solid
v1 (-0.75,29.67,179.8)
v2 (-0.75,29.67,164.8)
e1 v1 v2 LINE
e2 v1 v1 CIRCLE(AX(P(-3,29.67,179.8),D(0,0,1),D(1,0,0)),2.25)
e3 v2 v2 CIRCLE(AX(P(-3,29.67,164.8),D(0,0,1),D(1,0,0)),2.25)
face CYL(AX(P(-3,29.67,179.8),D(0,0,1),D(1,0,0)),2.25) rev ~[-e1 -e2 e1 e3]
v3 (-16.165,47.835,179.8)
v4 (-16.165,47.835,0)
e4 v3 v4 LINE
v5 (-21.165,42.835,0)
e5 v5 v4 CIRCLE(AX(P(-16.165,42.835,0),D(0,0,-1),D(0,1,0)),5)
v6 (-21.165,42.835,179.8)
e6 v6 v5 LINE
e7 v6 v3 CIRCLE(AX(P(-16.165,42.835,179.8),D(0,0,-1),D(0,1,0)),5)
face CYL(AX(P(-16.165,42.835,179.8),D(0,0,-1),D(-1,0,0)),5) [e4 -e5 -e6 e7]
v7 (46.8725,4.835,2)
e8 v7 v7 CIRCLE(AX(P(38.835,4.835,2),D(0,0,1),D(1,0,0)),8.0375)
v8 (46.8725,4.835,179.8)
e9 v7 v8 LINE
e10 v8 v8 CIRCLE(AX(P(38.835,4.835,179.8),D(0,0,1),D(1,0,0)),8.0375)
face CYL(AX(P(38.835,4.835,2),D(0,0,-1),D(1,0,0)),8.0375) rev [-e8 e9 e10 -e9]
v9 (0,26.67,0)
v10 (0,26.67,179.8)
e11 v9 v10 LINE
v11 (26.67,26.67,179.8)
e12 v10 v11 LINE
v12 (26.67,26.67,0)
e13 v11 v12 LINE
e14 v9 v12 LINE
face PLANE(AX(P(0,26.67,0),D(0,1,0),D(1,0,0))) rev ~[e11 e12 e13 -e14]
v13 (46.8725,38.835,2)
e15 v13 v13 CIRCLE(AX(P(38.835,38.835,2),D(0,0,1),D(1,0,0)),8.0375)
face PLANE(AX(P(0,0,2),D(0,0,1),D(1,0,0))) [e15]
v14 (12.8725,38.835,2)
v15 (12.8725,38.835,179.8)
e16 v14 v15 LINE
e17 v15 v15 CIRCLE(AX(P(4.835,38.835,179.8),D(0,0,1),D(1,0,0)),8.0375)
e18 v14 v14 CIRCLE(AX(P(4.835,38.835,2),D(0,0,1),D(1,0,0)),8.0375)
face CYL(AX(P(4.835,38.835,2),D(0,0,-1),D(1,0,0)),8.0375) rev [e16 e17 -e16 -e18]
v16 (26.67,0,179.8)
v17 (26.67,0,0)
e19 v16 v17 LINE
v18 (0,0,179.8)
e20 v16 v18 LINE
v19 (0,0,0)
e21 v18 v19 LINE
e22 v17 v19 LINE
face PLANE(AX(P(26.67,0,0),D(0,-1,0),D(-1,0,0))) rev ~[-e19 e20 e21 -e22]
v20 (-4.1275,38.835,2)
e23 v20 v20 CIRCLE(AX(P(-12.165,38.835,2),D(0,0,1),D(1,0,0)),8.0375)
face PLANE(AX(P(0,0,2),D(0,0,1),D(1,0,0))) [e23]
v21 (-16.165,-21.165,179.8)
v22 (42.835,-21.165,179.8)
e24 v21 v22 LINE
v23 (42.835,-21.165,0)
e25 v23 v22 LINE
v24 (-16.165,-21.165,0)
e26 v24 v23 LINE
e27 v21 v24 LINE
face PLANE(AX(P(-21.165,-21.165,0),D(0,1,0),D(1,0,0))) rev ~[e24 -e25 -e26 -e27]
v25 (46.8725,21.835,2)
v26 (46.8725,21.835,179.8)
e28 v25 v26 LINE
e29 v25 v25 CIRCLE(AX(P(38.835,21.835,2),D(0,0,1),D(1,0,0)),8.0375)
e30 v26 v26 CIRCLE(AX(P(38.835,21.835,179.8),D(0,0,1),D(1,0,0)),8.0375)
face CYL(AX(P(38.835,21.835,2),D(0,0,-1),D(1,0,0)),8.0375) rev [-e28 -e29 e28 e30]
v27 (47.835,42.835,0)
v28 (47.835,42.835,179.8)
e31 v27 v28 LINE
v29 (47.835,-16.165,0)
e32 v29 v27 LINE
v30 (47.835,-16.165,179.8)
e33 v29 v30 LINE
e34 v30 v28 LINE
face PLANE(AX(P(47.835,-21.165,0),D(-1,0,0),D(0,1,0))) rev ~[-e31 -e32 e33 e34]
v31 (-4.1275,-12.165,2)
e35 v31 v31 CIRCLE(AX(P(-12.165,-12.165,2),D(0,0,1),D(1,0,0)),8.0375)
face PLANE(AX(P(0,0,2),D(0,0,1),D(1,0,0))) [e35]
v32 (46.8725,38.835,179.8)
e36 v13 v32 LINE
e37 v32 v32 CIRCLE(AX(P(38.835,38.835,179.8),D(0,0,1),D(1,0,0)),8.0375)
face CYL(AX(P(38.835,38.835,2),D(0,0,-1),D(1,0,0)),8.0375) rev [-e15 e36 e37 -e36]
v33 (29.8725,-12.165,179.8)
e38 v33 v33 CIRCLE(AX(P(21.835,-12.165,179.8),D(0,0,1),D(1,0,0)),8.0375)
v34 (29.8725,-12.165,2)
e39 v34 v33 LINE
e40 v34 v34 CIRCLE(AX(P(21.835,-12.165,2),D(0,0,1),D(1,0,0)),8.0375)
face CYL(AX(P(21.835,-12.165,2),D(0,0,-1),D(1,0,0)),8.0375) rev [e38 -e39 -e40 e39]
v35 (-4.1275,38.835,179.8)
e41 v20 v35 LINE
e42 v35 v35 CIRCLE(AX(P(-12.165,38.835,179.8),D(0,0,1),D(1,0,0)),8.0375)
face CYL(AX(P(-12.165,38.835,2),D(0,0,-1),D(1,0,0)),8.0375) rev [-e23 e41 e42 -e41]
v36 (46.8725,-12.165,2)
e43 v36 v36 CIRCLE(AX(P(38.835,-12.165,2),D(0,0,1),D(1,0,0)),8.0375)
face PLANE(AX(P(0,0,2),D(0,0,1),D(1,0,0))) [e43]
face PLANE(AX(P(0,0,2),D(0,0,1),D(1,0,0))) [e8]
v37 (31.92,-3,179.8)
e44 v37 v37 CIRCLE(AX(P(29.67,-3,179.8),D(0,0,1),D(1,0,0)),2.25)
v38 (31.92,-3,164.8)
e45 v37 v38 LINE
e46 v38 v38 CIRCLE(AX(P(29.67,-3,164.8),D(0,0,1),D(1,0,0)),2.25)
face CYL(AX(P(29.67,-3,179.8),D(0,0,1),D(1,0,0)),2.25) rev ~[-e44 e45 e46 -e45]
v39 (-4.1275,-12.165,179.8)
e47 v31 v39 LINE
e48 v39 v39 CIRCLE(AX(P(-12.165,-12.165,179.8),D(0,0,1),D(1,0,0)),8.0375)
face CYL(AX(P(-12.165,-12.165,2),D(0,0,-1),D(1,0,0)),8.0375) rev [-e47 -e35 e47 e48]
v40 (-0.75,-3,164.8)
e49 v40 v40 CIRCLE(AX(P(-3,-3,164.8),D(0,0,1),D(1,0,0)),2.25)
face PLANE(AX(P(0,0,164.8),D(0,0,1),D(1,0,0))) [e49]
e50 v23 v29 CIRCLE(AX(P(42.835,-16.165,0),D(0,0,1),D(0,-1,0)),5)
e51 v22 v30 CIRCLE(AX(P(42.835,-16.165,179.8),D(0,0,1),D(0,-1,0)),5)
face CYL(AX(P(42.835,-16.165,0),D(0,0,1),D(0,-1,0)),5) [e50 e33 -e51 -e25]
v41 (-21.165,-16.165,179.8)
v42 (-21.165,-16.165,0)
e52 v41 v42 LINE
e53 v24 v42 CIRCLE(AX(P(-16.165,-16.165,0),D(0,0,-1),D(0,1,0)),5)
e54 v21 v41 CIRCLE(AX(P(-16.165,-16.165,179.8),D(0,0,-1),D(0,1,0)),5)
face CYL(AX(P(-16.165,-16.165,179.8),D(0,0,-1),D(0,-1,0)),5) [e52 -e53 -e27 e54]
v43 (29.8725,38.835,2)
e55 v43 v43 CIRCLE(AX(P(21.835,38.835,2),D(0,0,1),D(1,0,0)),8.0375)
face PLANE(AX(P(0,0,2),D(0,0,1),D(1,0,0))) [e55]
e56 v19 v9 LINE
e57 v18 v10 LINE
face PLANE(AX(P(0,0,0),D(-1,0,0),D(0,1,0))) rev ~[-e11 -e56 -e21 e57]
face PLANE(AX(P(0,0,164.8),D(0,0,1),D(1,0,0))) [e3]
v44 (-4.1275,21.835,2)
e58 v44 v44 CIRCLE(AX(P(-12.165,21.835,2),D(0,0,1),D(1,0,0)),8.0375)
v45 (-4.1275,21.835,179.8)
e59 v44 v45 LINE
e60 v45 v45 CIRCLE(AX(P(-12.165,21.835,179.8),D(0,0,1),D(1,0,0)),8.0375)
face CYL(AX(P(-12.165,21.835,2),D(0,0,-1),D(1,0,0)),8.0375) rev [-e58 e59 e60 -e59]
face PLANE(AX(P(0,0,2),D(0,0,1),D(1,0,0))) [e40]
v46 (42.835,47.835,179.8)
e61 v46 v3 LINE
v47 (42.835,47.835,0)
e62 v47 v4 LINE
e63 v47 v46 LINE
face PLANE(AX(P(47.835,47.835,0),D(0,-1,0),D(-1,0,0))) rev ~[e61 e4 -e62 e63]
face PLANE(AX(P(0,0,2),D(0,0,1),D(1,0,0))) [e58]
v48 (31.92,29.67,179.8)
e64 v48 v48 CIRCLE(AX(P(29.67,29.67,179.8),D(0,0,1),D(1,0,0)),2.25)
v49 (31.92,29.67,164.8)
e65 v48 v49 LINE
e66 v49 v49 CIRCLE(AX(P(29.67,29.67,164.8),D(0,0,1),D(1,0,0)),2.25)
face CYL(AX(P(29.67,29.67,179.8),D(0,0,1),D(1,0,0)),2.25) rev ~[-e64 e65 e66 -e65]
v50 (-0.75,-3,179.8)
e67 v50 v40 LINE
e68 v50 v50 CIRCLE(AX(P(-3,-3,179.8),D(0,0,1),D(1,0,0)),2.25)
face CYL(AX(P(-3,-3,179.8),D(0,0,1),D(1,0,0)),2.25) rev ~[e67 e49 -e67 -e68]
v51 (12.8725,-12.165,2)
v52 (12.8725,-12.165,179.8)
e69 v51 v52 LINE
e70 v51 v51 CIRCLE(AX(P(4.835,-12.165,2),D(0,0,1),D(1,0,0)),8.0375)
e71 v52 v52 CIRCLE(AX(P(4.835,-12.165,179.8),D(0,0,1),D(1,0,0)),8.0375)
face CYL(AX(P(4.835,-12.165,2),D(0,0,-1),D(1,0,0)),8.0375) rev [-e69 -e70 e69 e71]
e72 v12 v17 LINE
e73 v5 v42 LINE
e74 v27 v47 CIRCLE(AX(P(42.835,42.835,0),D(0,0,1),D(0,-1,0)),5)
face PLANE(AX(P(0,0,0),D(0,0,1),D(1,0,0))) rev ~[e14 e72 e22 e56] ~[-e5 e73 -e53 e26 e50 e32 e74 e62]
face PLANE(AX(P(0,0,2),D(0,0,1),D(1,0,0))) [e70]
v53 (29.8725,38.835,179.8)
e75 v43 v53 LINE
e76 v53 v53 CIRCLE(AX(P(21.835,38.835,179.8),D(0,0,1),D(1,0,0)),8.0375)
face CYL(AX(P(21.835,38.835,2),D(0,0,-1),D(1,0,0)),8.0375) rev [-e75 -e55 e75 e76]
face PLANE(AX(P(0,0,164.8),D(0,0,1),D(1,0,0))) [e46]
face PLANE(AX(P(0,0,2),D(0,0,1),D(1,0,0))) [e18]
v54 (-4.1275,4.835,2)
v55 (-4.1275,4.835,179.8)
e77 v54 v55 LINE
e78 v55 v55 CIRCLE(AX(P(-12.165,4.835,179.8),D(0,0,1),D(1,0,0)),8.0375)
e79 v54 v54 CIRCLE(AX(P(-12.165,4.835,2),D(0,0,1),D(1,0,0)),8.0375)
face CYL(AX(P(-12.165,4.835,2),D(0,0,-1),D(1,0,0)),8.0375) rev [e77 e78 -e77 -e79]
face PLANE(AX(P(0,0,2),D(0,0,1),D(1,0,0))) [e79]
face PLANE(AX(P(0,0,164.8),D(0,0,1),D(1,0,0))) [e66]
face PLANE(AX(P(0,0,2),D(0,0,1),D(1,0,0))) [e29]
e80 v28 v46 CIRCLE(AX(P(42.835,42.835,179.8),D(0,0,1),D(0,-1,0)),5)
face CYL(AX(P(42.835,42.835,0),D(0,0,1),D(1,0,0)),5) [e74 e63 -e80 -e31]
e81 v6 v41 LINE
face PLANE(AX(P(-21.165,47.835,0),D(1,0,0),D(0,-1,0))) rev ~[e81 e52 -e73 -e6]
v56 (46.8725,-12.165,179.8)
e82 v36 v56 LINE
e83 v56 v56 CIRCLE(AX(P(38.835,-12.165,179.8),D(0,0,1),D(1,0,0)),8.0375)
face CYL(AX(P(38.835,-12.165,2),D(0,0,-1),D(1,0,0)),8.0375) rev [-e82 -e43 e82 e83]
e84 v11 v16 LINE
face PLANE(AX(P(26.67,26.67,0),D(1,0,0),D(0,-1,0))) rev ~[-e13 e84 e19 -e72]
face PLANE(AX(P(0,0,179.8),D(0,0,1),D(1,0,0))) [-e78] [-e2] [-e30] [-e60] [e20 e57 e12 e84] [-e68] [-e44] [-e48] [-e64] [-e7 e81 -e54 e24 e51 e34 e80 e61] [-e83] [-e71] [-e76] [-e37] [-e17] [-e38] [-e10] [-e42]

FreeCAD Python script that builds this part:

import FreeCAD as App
import Part
import Sketcher


def edges_at(feature, points):
    """Names of the edges that pass closest to the given points."""
    edges = feature.Shape.Edges
    near = lambda p: min(range(len(edges)), key=lambda i: edges[i].distToShape(Part.Vertex(*p))[0])
    return sorted({f"Edge{near(p) + 1}" for p in points})


def add_polygon(sketch, points):
    """Adds a closed chain of lines whose ends are joined by coincident constraints."""
    first, n = sketch.GeometryCount, len(points)
    for a, b in zip(points, points[1:] + points[:1]):
        sketch.addGeometry(Part.LineSegment(App.Vector(*a, 0), App.Vector(*b, 0)), False)
    for i in range(n):
        sketch.addConstraint(Sketcher.Constraint("Coincident", first + i, 2, first + (i + 1) % n, 1))

doc = App.newDocument("Part")
params = doc.addObject("Spreadsheet::Sheet", "Params")
for row, (alias, value) in enumerate([
    ("sketch1_width", "69 mm"),
    ("sketch1_width2", "26.67 mm"),
    ("pad1_length", "2 mm"),
    ("sketch2_width", "26.67 mm"),
    ("pad2_length", "177.8 mm"),
    ("sketch3_diameter", "4.5 mm"),
    ("pocket1_length", "15 mm"),
    ("fillet_radius", "5 mm"),
], start=1):
    params.set(f"A{row}", alias)
    params.set(f"B{row}", "=" + value)
    params.setAlias(f"B{row}", alias)

body = doc.addObject("PartDesign::Body", "Body")

sketch1 = body.newObject("Sketcher::SketchObject", "Sketch")
sketch1.AttachmentSupport = (doc.getObject("XY_Plane"), [""])
sketch1.MapMode = "FlatFace"
add_polygon(sketch1, [(-21.165, -21.165), (47.835, -21.165), (47.835, 47.835), (-21.165, 47.835)])
add_polygon(sketch1, [(0, 0), (0, 26.67), (26.67, 26.67), (26.67, 0)])
sketch1.addConstraint(Sketcher.Constraint("Horizontal", 0))
sketch1.addConstraint(Sketcher.Constraint("Vertical", 1))
sketch1.addConstraint(Sketcher.Constraint("Horizontal", 2))
sketch1.addConstraint(Sketcher.Constraint("Vertical", 3))
sketch1.addConstraint(Sketcher.Constraint("Vertical", 4))
sketch1.addConstraint(Sketcher.Constraint("Horizontal", 5))
sketch1.addConstraint(Sketcher.Constraint("Vertical", 6))
sketch1.addConstraint(Sketcher.Constraint("Horizontal", 7))
sketch1.addConstraint(Sketcher.Constraint("Coincident", 7, 2, -1, 1))
sketch1.addConstraint(Sketcher.Constraint("Equal", 2, 1))
sketch1.addConstraint(Sketcher.Constraint("Equal", 7, 4))
sketch1.addConstraint(Sketcher.Constraint("DistanceX", 0, 1, 0, 2, 69.0))
sketch1.addConstraint(Sketcher.Constraint("DistanceX", 5, 1, 5, 2, 26.67))
sketch1.addConstraint(Sketcher.Constraint("DistanceX", -1, 1, 0, 2, 47.835))
sketch1.addConstraint(Sketcher.Constraint("DistanceY", 0, 2, -1, 1, 21.165))
sketch1.setExpression("Constraints[19]", "Params.sketch1_width")
sketch1.setExpression("Constraints[20]", "Params.sketch1_width2")
pad1 = body.newObject("PartDesign::Pad", "Pad")
pad1.Profile = sketch1
pad1.setExpression("Length", "Params.pad1_length")

sketch2 = body.newObject("Sketcher::SketchObject", "Sketch001")
sketch2.AttachmentSupport = (doc.getObject("XY_Plane"), [""])
sketch2.MapMode = "FlatFace"
sketch2.AttachmentOffset = App.Placement(App.Vector(0, 0, 2), App.Rotation())
add_polygon(sketch2, [(47.835, -21.165), (47.835, 47.835), (-21.165, 47.835), (-21.165, -21.165)])
sketch2.addGeometry(Part.Circle(App.Vector(-12.165, -12.165, 0), App.Vector(0, 0, 1), 8.0375), False)
sketch2.addGeometry(Part.Circle(App.Vector(4.835, -12.165, 0), App.Vector(0, 0, 1), 8.0375), False)
sketch2.addGeometry(Part.Circle(App.Vector(-12.165, 4.835, 0), App.Vector(0, 0, 1), 8.0375), False)
sketch2.addGeometry(Part.Circle(App.Vector(21.835, -12.165, 0), App.Vector(0, 0, 1), 8.0375), False)
sketch2.addGeometry(Part.Circle(App.Vector(38.835, -12.165, 0), App.Vector(0, 0, 1), 8.0375), False)
sketch2.addGeometry(Part.Circle(App.Vector(38.835, 4.835, 0), App.Vector(0, 0, 1), 8.0375), False)
sketch2.addGeometry(Part.Circle(App.Vector(-12.165, 21.835, 0), App.Vector(0, 0, 1), 8.0375), False)
sketch2.addGeometry(Part.Circle(App.Vector(-12.165, 38.835, 0), App.Vector(0, 0, 1), 8.0375), False)
sketch2.addGeometry(Part.Circle(App.Vector(4.835, 38.835, 0), App.Vector(0, 0, 1), 8.0375), False)
add_polygon(sketch2, [(26.67, 0), (0, 0), (0, 26.67), (26.67, 26.67)])
sketch2.addGeometry(Part.Circle(App.Vector(38.835, 21.835, 0), App.Vector(0, 0, 1), 8.0375), False)
sketch2.addGeometry(Part.Circle(App.Vector(21.835, 38.835, 0), App.Vector(0, 0, 1), 8.0375), False)
sketch2.addGeometry(Part.Circle(App.Vector(38.835, 38.835, 0), App.Vector(0, 0, 1), 8.0375), False)
sketch2.addConstraint(Sketcher.Constraint("Vertical", 0))
sketch2.addConstraint(Sketcher.Constraint("Horizontal", 1))
sketch2.addConstraint(Sketcher.Constraint("Vertical", 2))
sketch2.addConstraint(Sketcher.Constraint("Horizontal", 3))
sketch2.addConstraint(Sketcher.Constraint("Horizontal", 13))
sketch2.addConstraint(Sketcher.Constraint("Vertical", 14))
sketch2.addConstraint(Sketcher.Constraint("Horizontal", 15))
sketch2.addConstraint(Sketcher.Constraint("Vertical", 16))
sketch2.addConstraint(Sketcher.Constraint("Coincident", 13, 2, -1, 1))
sketch2.addConstraint(Sketcher.Constraint("Equal", 4, 5))
sketch2.addConstraint(Sketcher.Constraint("Equal", 5, 6))
sketch2.addConstraint(Sketcher.Constraint("Equal", 6, 7))
sketch2.addConstraint(Sketcher.Constraint("Equal", 7, 8))
sketch2.addConstraint(Sketcher.Constraint("Equal", 8, 9))
sketch2.addConstraint(Sketcher.Constraint("Equal", 9, 10))
sketch2.addConstraint(Sketcher.Constraint("Equal", 10, 11))
sketch2.addConstraint(Sketcher.Constraint("Equal", 11, 12))
sketch2.addConstraint(Sketcher.Constraint("Equal", 12, 17))
sketch2.addConstraint(Sketcher.Constraint("Equal", 17, 18))
sketch2.addConstraint(Sketcher.Constraint("Equal", 18, 19))
sketch2.addConstraint(Sketcher.Constraint("Horizontal", 4, 3, 5, 3))
sketch2.addConstraint(Sketcher.Constraint("Horizontal", 5, 3, 7, 3))
sketch2.addConstraint(Sketcher.Constraint("Horizontal", 7, 3, 8, 3))
sketch2.addConstraint(Sketcher.Constraint("Horizontal", 6, 3, 9, 3))
sketch2.addConstraint(Sketcher.Constraint("Horizontal", 11, 3, 12, 3))
sketch2.addConstraint(Sketcher.Constraint("Horizontal", 10, 3, 17, 3))
sketch2.addConstraint(Sketcher.Constraint("Horizontal", 12, 3, 18, 3))
sketch2.addConstraint(Sketcher.Constraint("Horizontal", 18, 3, 19, 3))
sketch2.addConstraint(Sketcher.Constraint("Vertical", 4, 3, 6, 3))
sketch2.addConstraint(Sketcher.Constraint("Vertical", 8, 3, 9, 3))
sketch2.addConstraint(Sketcher.Constraint("Vertical", 6, 3, 10, 3))
sketch2.addConstraint(Sketcher.Constraint("Vertical", 10, 3, 11, 3))
sketch2.addConstraint(Sketcher.Constraint("Vertical", 5, 3, 12, 3))
sketch2.addConstraint(Sketcher.Constraint("Vertical", 9, 3, 17, 3))
sketch2.addConstraint(Sketcher.Constraint("Vertical", 7, 3, 18, 3))
sketch2.addConstraint(Sketcher.Constraint("Vertical", 17, 3, 19, 3))
sketch2.addConstraint(Sketcher.Constraint("Equal", 3, 0))
sketch2.addConstraint(Sketcher.Constraint("Equal", 15, 14))
sketch2.addConstraint(Sketcher.Constraint("Diameter", 4, 16.075))
sketch2.addConstraint(Sketcher.Constraint("DistanceX", 4, 3, 5, 3, 17.0))
sketch2.addConstraint(Sketcher.Constraint("DistanceY", 4, 3, 6, 3, 17.0))
sketch2.addConstraint(Sketcher.Constraint("DistanceX", 5, 3, 7, 3, 17.0))
sketch2.addConstraint(Sketcher.Constraint("DistanceX", 7, 3, 8, 3, 17.0))
sketch2.addConstraint(Sketcher.Constraint("DistanceY", 6, 3, 10, 3, 17.0))
sketch2.addConstraint(Sketcher.Constraint("DistanceY", 10, 3, 11, 3, 17.0))
sketch2.addConstraint(Sketcher.Constraint("DistanceX", 19, 3, 0, 2, 9.0))
sketch2.addConstraint(Sketcher.Constraint("DistanceY", 19, 3, 0, 2, 9.0))
sketch2.addConstraint(Sketcher.Constraint("DistanceX", 1, 2, 11, 3, 9.0))
sketch2.addConstraint(Sketcher.Constraint("DistanceX", 13, 2, 13, 1, 26.67))
sketch2.addConstraint(Sketcher.Constraint("DistanceX", 4, 3, -1, 1, 12.165))
sketch2.addConstraint(Sketcher.Constraint("DistanceY", 4, 3, -1, 1, 12.165))
sketch2.setExpression("Constraints[56]", "Params.sketch2_width")
pad2 = body.newObject("PartDesign::Pad", "Pad001")
pad2.Profile = sketch2
pad2.setExpression("Length", "Params.pad2_length")

sketch3 = body.newObject("Sketcher::SketchObject", "Sketch002")
sketch3.AttachmentSupport = (doc.getObject("XY_Plane"), [""])
sketch3.MapMode = "FlatFace"
sketch3.AttachmentOffset = App.Placement(App.Vector(0, 0, 179.8), App.Rotation())
sketch3.addGeometry(Part.Circle(App.Vector(-3, 29.67, 0), App.Vector(0, 0, 1), 2.25), False)
sketch3.addGeometry(Part.Circle(App.Vector(29.67, 29.67, 0), App.Vector(0, 0, 1), 2.25), False)
sketch3.addGeometry(Part.Circle(App.Vector(29.67, -3, 0), App.Vector(0, 0, 1), 2.25), False)
sketch3.addGeometry(Part.Circle(App.Vector(-3, -3, 0), App.Vector(0, 0, 1), 2.25), False)
sketch3.addConstraint(Sketcher.Constraint("Equal", 0, 1))
sketch3.addConstraint(Sketcher.Constraint("Equal", 1, 2))
sketch3.addConstraint(Sketcher.Constraint("Equal", 2, 3))
sketch3.addConstraint(Sketcher.Constraint("Horizontal", 0, 3, 1, 3))
sketch3.addConstraint(Sketcher.Constraint("Horizontal", 2, 3, 3, 3))
sketch3.addConstraint(Sketcher.Constraint("Vertical", 1, 3, 2, 3))
sketch3.addConstraint(Sketcher.Constraint("Vertical", 0, 3, 3, 3))
sketch3.addConstraint(Sketcher.Constraint("Diameter", 0, 4.5))
sketch3.addConstraint(Sketcher.Constraint("DistanceX", 0, 3, -1, 1, 3.0))
sketch3.addConstraint(Sketcher.Constraint("DistanceY", 2, 3, -1, 1, 3.0))
sketch3.addConstraint(Sketcher.Constraint("DistanceY", -1, 1, 0, 3, 29.67))
sketch3.addConstraint(Sketcher.Constraint("DistanceX", -1, 1, 1, 3, 29.67))
sketch3.setExpression("Constraints[7]", "Params.sketch3_diameter")
pocket1 = body.newObject("PartDesign::Pocket", "Pocket")
pocket1.Profile = sketch3
pocket1.setExpression("Length", "Params.pocket1_length")
doc.recompute()

fillet = body.newObject("PartDesign::Fillet", "Fillet")
fillet.Base = (pocket1, edges_at(pocket1, [
    (-21.165, -21.165, 89.9),
    (-21.165, 47.835, 89.9),
    (47.835, 47.835, 89.9),
    (47.835, -21.165, 89.9),
]))
fillet.setExpression("Radius", "Params.fillet_radius")

doc.recompute()
